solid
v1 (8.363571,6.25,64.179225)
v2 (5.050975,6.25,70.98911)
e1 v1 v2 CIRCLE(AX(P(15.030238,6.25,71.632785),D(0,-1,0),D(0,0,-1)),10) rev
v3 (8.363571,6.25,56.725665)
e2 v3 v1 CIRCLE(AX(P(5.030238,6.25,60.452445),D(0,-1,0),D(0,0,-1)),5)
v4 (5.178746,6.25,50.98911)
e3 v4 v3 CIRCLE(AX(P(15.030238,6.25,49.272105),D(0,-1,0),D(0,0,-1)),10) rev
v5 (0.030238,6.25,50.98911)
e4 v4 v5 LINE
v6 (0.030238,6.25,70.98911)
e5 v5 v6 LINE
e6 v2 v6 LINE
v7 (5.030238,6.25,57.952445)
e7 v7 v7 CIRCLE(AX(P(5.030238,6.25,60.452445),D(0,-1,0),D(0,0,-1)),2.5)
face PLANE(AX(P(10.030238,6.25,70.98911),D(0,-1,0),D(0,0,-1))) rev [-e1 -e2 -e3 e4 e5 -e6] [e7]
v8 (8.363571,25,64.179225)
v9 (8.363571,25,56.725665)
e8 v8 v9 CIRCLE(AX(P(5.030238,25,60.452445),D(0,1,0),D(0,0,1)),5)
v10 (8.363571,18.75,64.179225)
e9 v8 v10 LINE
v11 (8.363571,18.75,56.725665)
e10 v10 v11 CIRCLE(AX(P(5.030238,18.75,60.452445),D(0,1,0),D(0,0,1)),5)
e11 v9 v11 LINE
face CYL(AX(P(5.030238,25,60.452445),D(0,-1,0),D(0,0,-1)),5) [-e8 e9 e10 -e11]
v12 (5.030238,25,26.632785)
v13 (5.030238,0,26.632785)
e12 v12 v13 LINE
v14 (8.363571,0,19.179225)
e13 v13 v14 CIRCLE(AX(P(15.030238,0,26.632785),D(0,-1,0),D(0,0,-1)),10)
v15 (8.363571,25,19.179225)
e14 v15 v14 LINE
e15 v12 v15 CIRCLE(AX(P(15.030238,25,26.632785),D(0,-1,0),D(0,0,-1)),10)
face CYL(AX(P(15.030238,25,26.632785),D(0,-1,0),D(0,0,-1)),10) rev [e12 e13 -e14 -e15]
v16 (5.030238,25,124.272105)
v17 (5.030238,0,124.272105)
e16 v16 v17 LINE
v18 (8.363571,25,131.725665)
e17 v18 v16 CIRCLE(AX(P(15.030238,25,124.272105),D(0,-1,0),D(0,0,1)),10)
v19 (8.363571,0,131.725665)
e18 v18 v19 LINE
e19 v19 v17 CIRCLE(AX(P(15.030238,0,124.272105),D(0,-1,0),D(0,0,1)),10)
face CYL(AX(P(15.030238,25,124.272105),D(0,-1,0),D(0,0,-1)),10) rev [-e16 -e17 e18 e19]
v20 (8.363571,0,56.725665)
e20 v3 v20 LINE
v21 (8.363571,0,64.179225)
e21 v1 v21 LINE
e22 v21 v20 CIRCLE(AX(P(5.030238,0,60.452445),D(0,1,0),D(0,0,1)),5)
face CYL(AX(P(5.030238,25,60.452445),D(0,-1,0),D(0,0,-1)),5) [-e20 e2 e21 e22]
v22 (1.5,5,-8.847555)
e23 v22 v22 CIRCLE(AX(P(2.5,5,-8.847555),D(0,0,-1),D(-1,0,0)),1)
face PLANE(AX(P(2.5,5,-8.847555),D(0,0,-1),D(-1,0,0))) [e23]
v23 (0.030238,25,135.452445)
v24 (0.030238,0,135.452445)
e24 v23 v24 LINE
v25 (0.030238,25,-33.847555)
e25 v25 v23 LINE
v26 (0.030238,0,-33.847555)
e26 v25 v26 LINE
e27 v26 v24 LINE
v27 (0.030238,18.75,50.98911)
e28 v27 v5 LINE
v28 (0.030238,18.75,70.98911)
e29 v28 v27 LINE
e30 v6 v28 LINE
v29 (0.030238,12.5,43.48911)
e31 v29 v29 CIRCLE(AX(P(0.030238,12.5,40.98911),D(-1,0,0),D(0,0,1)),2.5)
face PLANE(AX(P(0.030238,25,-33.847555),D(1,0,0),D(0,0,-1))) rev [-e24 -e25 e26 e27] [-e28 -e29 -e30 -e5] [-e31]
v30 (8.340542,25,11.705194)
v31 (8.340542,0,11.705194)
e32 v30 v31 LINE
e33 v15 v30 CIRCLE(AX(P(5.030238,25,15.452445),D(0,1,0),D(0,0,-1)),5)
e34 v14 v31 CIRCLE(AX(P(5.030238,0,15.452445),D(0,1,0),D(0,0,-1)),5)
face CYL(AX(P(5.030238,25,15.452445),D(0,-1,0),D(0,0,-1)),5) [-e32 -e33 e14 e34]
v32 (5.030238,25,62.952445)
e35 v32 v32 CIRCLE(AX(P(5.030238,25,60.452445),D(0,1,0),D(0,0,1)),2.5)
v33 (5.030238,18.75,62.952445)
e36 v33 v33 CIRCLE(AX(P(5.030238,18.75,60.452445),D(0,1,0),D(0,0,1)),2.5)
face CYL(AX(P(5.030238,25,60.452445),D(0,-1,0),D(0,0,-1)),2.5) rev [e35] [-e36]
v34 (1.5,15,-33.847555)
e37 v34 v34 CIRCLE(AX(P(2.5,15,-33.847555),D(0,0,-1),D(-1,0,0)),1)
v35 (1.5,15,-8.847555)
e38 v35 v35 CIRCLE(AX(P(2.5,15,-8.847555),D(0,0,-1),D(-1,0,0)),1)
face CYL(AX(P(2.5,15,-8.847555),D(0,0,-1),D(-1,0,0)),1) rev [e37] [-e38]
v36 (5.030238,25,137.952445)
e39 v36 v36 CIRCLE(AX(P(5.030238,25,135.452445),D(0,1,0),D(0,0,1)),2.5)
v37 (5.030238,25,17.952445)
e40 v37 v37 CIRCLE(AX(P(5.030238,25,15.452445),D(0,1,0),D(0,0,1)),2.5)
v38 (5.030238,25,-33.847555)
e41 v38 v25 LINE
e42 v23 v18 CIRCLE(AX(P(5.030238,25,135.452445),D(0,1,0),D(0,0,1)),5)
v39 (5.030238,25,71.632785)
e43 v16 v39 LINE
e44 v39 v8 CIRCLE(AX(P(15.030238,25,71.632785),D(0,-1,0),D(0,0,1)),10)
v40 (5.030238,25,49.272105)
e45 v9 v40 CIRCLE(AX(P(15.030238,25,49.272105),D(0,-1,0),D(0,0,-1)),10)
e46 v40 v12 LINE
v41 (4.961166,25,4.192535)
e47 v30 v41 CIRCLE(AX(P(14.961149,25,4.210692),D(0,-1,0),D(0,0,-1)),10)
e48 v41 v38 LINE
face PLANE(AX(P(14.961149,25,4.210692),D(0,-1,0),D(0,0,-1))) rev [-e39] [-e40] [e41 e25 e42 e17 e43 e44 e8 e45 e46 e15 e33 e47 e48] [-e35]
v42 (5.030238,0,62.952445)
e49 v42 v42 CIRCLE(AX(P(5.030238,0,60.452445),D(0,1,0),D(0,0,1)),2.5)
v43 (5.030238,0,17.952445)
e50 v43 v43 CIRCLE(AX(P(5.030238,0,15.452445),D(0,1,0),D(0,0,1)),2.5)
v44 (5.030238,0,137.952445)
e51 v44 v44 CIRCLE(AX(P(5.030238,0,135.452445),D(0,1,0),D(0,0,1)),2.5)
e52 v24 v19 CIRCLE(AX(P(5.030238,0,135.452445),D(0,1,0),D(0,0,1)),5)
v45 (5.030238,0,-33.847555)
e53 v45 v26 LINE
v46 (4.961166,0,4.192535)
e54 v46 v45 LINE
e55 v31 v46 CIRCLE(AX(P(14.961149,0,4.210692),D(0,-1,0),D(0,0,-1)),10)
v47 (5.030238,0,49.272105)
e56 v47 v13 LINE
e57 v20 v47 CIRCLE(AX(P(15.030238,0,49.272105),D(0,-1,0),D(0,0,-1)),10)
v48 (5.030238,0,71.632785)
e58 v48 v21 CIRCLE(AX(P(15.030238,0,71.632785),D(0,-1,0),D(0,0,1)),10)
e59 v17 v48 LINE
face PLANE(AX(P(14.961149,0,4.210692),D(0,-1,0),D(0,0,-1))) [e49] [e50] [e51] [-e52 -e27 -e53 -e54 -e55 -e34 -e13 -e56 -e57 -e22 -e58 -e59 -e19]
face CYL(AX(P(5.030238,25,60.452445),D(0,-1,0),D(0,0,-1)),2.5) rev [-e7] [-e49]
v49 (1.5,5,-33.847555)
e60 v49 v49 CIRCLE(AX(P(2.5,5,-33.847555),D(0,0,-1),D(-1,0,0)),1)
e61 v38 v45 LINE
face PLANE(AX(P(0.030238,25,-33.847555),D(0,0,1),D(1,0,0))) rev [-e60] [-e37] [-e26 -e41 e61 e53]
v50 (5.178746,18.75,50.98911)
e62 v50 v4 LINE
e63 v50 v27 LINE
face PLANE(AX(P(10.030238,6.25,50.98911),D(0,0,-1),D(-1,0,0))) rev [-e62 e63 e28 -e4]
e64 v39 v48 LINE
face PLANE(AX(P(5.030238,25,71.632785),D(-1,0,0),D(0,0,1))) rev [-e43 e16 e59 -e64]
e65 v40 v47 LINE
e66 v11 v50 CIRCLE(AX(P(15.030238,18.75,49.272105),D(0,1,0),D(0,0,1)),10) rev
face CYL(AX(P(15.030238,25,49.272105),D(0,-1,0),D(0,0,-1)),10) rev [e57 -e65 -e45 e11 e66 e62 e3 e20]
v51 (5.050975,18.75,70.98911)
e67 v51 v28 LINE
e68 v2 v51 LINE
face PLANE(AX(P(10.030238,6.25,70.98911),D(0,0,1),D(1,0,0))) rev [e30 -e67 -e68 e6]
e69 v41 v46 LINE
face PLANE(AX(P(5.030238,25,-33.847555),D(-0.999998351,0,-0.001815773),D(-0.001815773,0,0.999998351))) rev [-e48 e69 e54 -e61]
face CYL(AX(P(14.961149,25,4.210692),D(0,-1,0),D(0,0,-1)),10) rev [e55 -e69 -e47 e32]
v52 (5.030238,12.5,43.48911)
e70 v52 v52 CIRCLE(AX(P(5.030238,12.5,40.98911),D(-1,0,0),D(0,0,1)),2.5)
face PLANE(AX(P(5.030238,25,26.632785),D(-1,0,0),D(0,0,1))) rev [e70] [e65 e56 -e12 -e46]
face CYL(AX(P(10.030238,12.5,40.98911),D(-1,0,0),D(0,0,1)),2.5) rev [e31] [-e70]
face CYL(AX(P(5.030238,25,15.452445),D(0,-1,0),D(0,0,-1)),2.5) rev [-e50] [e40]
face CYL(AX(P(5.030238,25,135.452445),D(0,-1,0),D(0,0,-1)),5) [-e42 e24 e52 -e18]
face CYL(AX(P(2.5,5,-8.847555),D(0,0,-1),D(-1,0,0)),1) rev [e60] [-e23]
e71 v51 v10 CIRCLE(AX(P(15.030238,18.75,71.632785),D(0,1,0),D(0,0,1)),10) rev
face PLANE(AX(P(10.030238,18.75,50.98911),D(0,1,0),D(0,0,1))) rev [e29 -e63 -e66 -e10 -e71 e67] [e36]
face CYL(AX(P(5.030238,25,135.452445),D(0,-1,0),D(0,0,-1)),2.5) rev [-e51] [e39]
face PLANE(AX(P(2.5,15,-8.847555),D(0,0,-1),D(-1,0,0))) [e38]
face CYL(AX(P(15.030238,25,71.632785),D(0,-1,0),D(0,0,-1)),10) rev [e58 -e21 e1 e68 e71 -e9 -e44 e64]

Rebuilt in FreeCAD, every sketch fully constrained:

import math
import FreeCAD as App
import Part
import Sketcher
from FreeCAD import Vector
Q = App.Units.Quantity


def add_polygon(sketch, points):
    """Adds a closed chain of lines whose ends are joined by coincident constraints."""
    first, n = sketch.GeometryCount, len(points)
    for a, b in zip(points, points[1:] + points[:1]):
        sketch.addGeometry(Part.LineSegment(App.Vector(*a, 0), App.Vector(*b, 0)), False)
    for i in range(n):
        sketch.addConstraint(Sketcher.Constraint("Coincident", first + i, 2, first + (i + 1) % n, 1))

doc = App.newDocument("Part")
body = doc.addObject("PartDesign::Body", "Body")

# Sketch on XZ plane
sketch1 = body.newObject("Sketcher::SketchObject", "Sketch")
sketch1.AttachmentSupport = (doc.getObject("XZ_Plane"), [""])
sketch1.MapMode = "FlatFace"
sketch1.addGeometry([
    Part.LineSegment(Vector(0, -33.8, 0), Vector(0, 135.5, 0)),  # 0
    Part.ArcOfCircle(Part.Circle(Vector(5, 135.5, 0), Vector(0, 0, 1), 5), math.radians(-48), math.radians(180)),  # 1
    Part.ArcOfCircle(Part.Circle(Vector(15, 124.3, 0), Vector(0, 0, 1), 10), math.radians(132), math.radians(180)),  # 2
    Part.LineSegment(Vector(5, 124.3, 0), Vector(5, 71.6, 0)),  # 3
    Part.ArcOfCircle(Part.Circle(Vector(15, 71.6, 0), Vector(0, 0, 1), 10), math.radians(180), math.radians(228)),  # 4
    Part.ArcOfCircle(Part.Circle(Vector(5, 60.5, 0), Vector(0, 0, 1), 5), math.radians(-48), math.radians(48)),  # 5
    Part.ArcOfCircle(Part.Circle(Vector(15, 49.3, 0), Vector(0, 0, 1), 10), math.radians(132), math.radians(180)),  # 6
    Part.LineSegment(Vector(5, 49.3, 0), Vector(5, 26.6, 0)),  # 7
    Part.ArcOfCircle(Part.Circle(Vector(15, 26.6, 0), Vector(0, 0, 1), 10), math.radians(180), math.radians(228)),  # 8
    Part.ArcOfCircle(Part.Circle(Vector(5, 15.5, 0), Vector(0, 0, 1), 5), math.radians(-49), math.radians(48)),  # 9
    Part.ArcOfCircle(Part.Circle(Vector(15, 4.2, 0), Vector(0, 0, 1), 10), math.radians(131), math.radians(180)),  # 10
    Part.LineSegment(Vector(5, 4.2, 0), Vector(5, -33.8, 0)),  # 11
    Part.LineSegment(Vector(5, -33.8, 0), Vector(0, -33.8, 0)),  # 12
    Part.Circle(Vector(5, 135.5, 0), Vector(0, 0, 1), 2.5),  # 13
    Part.Circle(Vector(5, 60.5, 0), Vector(0, 0, 1), 2.5),  # 14
    Part.Circle(Vector(5, 15.5, 0), Vector(0, 0, 1), 2.5),  # 15
], False)
sketch1.addConstraint([
    Sketcher.Constraint("Tangent", 0, 2, 1, 2),
    Sketcher.Constraint("Tangent", 1, 1, 2, 1),
    Sketcher.Constraint("Tangent", 2, 2, 3, 1),
    Sketcher.Constraint("Tangent", 3, 2, 4, 1),
    Sketcher.Constraint("Tangent", 4, 2, 5, 2),
    Sketcher.Constraint("Tangent", 5, 1, 6, 1),
    Sketcher.Constraint("Tangent", 6, 2, 7, 1),
    Sketcher.Constraint("Tangent", 7, 2, 8, 1),
    Sketcher.Constraint("Tangent", 8, 2, 9, 2),
    Sketcher.Constraint("Tangent", 9, 1, 10, 1),
    Sketcher.Constraint("Tangent", 10, 2, 11, 1),
    Sketcher.Constraint("Coincident", 11, 2, 12, 1),
    Sketcher.Constraint("Coincident", 12, 2, 0, 1),
    Sketcher.Constraint("Vertical", 0),
    Sketcher.Constraint("Vertical", 3),
    Sketcher.Constraint("Vertical", 7),
    Sketcher.Constraint("Horizontal", 12),
    Sketcher.Constraint("Coincident", 13, 3, 1, 3),
    Sketcher.Constraint("Coincident", 14, 3, 5, 3),
    Sketcher.Constraint("Coincident", 15, 3, 9, 3),
    Sketcher.Constraint("Equal", 2, 4),
    Sketcher.Constraint("Equal", 1, 5),
    Sketcher.Constraint("Equal", 4, 6),
    Sketcher.Constraint("Equal", 6, 8),
    Sketcher.Constraint("Equal", 5, 9),
    Sketcher.Constraint("Equal", 8, 10),
    Sketcher.Constraint("Equal", 13, 14),
    Sketcher.Constraint("Equal", 14, 15),
    Sketcher.Constraint("Vertical", 1, 3, 5, 3),
    Sketcher.Constraint("Vertical", 4, 3, 6, 3),
    Sketcher.Constraint("Vertical", 5, 3, 9, 3),
    Sketcher.Constraint("Vertical", 15, 3, 2, 2),
    Sketcher.Constraint("Vertical", 7, 2, 11, 2),
    Sketcher.Constraint("Diameter", 13, Q("5 mm")),
    Sketcher.Constraint("Radius", 1, Q("5 mm")),
    Sketcher.Constraint("Radius", 2, Q("10 mm")),
    Sketcher.Constraint("DistanceY", 0, 1, 0, 2, Q("169.3 mm")),
    Sketcher.Constraint("DistanceY", 5, 3, 1, 3, Q("75 mm")),
    Sketcher.Constraint("DistanceY", 8, 3, 4, 3, Q("45 mm")),
    Sketcher.Constraint("DistanceY", 10, 3, 9, 1, Q("7.494502 mm")),
    Sketcher.Constraint("DistanceX", -1, 1, 10, 3, Q("14.961149 mm")),
    Sketcher.Constraint("DistanceY", -1, 1, 1, 3, Q("135.452445 mm")),
])
pad1 = body.newObject("PartDesign::Pad", "Pad")
pad1.Profile = sketch1
pad1.Length = 25
pad1.Reversed = True

# Sketch on XY plane
sketch2 = body.newObject("Sketcher::SketchObject", "Sketch001")
sketch2.AttachmentSupport = (doc.getObject("XY_Plane"), [""])
sketch2.MapMode = "FlatFace"
sketch2.AttachmentOffset = App.Placement(Vector(0, 0, -33.847555), App.Rotation())
sketch2.addGeometry([
    Part.Circle(Vector(2.5, 15, 0), Vector(0, 0, 1), 1),
    Part.Circle(Vector(2.5, 5, 0), Vector(0, 0, 1), 1),
], False)
sketch2.addConstraint([
    Sketcher.Constraint("Equal", 0, 1),
    Sketcher.Constraint("Vertical", 0, 3, 1, 3),
    Sketcher.Constraint("Diameter", 0, Q("2 mm")),
    Sketcher.Constraint("DistanceY", -1, 1, 0, 3, Q("15 mm")),
    Sketcher.Constraint("DistanceY", -1, 1, 1, 3, Q("5 mm")),
    Sketcher.Constraint("DistanceX", -1, 1, 0, 3, Q("2.5 mm")),
])
pocket1 = body.newObject("PartDesign::Pocket", "Pocket")
pocket1.Profile = sketch2
pocket1.Length = 25
pocket1.Reversed = True

# Sketch on YZ plane
sketch3 = body.newObject("Sketcher::SketchObject", "Sketch002")
sketch3.AttachmentSupport = (doc.getObject("YZ_Plane"), [""])
sketch3.MapMode = "FlatFace"
sketch3.AttachmentOffset = App.Placement(Vector(0, 0, 0.030238), App.Rotation())
sketch3.addGeometry(Part.Circle(Vector(12.5, 41, 0), Vector(0, 0, 1), 2.5), False)  # 0
add_polygon(sketch3, [(18.8, 51), (6.2, 51), (6.2, 71), (18.8, 71)])  # lines 1-4
sketch3.addConstraint([
    Sketcher.Constraint("Horizontal", 1),
    Sketcher.Constraint("Vertical", 2),
    Sketcher.Constraint("Horizontal", 3),
    Sketcher.Constraint("Vertical", 4),
    Sketcher.Constraint("Diameter", 0, Q("5 mm")),
    Sketcher.Constraint("DistanceY", 2, 1, 2, 2, Q("20 mm")),
    Sketcher.Constraint("DistanceX", 1, 2, 1, 1, Q("12.5 mm")),
    Sketcher.Constraint("DistanceY", 0, 3, 1, 2, Q("10 mm")),
    Sketcher.Constraint("DistanceX", -1, 1, 0, 3, Q("12.5 mm")),
    Sketcher.Constraint("DistanceX", -1, 1, 1, 2, Q("6.25 mm")),
    Sketcher.Constraint("DistanceY", -1, 1, 0, 3, Q("40.98911 mm")),
])
pocket2 = body.newObject("PartDesign::Pocket", "Pocket001")
pocket2.Profile = sketch3
pocket2.Type = "ThroughAll"
pocket2.Reversed = True

doc.recompute()
